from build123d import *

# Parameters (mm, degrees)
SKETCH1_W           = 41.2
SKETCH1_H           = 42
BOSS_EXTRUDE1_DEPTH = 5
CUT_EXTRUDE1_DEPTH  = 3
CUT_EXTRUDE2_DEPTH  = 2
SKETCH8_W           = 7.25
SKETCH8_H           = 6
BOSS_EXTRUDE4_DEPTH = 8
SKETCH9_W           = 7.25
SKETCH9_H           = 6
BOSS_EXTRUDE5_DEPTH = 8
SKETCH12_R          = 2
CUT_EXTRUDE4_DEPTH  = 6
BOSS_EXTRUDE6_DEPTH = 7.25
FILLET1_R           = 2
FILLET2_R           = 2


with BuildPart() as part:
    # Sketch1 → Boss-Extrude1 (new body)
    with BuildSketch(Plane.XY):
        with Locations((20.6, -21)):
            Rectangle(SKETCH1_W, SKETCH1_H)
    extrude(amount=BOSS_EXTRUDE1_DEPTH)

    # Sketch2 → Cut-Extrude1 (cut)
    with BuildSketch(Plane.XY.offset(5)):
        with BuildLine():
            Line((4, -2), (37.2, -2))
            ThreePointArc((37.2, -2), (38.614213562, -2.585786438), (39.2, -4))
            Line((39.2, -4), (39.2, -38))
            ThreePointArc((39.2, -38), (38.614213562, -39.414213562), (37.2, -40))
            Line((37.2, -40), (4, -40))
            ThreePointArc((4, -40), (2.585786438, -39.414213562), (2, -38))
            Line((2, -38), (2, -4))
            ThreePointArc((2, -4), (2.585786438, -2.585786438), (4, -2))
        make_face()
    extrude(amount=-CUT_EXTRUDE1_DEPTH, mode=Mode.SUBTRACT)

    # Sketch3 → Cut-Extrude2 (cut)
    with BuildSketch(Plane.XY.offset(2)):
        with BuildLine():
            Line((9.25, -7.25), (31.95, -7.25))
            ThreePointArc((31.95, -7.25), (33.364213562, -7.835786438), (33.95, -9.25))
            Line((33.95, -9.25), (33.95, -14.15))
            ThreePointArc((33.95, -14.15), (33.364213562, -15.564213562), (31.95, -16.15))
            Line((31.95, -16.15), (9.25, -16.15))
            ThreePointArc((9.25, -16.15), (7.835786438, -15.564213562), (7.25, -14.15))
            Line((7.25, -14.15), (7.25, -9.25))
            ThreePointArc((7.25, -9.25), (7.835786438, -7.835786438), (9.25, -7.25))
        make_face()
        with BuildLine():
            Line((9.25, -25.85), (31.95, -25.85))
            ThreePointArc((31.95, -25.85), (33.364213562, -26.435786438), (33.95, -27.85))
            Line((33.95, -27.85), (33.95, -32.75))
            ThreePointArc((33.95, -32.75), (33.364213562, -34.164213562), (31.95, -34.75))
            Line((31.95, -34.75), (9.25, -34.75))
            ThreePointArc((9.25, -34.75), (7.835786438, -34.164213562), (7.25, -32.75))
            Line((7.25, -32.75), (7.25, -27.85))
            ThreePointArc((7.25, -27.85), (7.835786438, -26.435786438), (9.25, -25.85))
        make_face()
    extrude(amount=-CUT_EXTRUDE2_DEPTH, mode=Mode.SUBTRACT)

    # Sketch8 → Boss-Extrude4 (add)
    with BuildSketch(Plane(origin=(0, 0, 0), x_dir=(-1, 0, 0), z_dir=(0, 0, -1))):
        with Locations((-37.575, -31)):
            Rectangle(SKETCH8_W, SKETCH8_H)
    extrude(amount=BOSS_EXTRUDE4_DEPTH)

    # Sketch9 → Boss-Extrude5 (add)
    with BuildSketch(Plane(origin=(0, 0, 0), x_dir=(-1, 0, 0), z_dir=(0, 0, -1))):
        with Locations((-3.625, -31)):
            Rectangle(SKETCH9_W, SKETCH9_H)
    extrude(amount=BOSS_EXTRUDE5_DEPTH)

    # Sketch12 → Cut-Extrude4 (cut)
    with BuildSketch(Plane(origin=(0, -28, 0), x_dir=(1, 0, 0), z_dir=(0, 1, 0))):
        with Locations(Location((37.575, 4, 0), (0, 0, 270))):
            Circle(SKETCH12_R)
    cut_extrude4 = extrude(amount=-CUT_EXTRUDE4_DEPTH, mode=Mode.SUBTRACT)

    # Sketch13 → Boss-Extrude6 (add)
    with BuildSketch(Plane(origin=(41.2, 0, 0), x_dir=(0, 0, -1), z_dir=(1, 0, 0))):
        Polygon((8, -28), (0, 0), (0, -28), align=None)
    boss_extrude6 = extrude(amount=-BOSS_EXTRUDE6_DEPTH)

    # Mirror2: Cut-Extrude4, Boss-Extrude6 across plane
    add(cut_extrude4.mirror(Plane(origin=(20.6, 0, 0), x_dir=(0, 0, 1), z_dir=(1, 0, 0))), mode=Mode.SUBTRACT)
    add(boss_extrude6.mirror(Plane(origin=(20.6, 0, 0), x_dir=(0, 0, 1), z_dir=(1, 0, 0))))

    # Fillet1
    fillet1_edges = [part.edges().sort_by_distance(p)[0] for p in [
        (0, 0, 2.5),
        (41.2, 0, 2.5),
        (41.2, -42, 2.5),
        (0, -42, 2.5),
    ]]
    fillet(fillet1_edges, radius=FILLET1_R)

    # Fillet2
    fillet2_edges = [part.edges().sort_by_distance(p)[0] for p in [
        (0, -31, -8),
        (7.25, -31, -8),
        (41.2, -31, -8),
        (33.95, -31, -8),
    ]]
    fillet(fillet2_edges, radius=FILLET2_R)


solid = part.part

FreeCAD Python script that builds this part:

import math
import FreeCAD as App
import Part
import Sketcher

V = App.Vector
Q = App.Units.Quantity


def edges_at(feature, points):
    """Names of the edges that pass closest to the given points."""
    edges = feature.Shape.Edges
    near = lambda p: min(range(len(edges)), key=lambda i: edges[i].distToShape(Part.Vertex(*p))[0])
    return sorted({f"Edge{near(p) + 1}" for p in points})


def add_polygon(sketch, points):
    """Adds a closed chain of lines whose ends are joined by coincident constraints."""
    first, n = sketch.GeometryCount, len(points)
    for a, b in zip(points, points[1:] + points[:1]):
        sketch.addGeometry(Part.LineSegment(App.Vector(*a, 0), App.Vector(*b, 0)), False)
    for i in range(n):
        sketch.addConstraint(Sketcher.Constraint("Coincident", first + i, 2, first + (i + 1) % n, 1))

doc = App.newDocument("Part")
body = doc.addObject("PartDesign::Body", "Body")

sketch1 = body.newObject("Sketcher::SketchObject", "Sketch")
sketch1.AttachmentSupport = (doc.getObject("XY_Plane"), [""])
sketch1.MapMode = "FlatFace"
add_polygon(sketch1, [(0, 0), (0, -42), (41, -42), (41, 0)])
sketch1.addConstraint(Sketcher.Constraint("Vertical", 0))
sketch1.addConstraint(Sketcher.Constraint("Horizontal", 1))
sketch1.addConstraint(Sketcher.Constraint("Vertical", 2))
sketch1.addConstraint(Sketcher.Constraint("Horizontal", 3))
sketch1.addConstraint(Sketcher.Constraint("Coincident", 3, 2, -1, 1))
sketch1.addConstraint(Sketcher.Constraint("DistanceY", 0, 2, 0, 1, Q("42 mm")))
sketch1.addConstraint(Sketcher.Constraint("DistanceX", 1, 1, 1, 2, Q("41.2 mm")))
pad1 = body.newObject("PartDesign::Pad", "Pad")
pad1.Profile = sketch1
pad1.Length = 5

sketch2 = body.newObject("Sketcher::SketchObject", "Sketch001")
sketch2.AttachmentSupport = (doc.getObject("XY_Plane"), [""])
sketch2.MapMode = "FlatFace"
sketch2.AttachmentOffset = App.Placement(V(0, 0, 5), App.Rotation())
sketch2.addGeometry(Part.LineSegment(V(37.2, -2, 0), V(4, -2, 0)), False)
sketch2.addGeometry(Part.ArcOfCircle(Part.Circle(V(4, -4, 0), V(0, 0, 1), 2), math.radians(90), math.radians(180)), False)
sketch2.addGeometry(Part.LineSegment(V(2, -4, 0), V(2, -38, 0)), False)
sketch2.addGeometry(Part.ArcOfCircle(Part.Circle(V(4, -38, 0), V(0, 0, 1), 2), math.radians(-180), math.radians(-90)), False)
sketch2.addGeometry(Part.LineSegment(V(4, -40, 0), V(37.2, -40, 0)), False)
sketch2.addGeometry(Part.ArcOfCircle(Part.Circle(V(37.2, -38, 0), V(0, 0, 1), 2), math.radians(-90), math.radians(0)), False)
sketch2.addGeometry(Part.LineSegment(V(39.2, -38, 0), V(39.2, -4, 0)), False)
sketch2.addGeometry(Part.ArcOfCircle(Part.Circle(V(37.2, -4, 0), V(0, 0, 1), 2), math.radians(0), math.radians(90)), False)
sketch2.addConstraint(Sketcher.Constraint("Tangent", 0, 2, 1, 1))
sketch2.addConstraint(Sketcher.Constraint("Tangent", 1, 2, 2, 1))
sketch2.addConstraint(Sketcher.Constraint("Tangent", 2, 2, 3, 1))
sketch2.addConstraint(Sketcher.Constraint("Tangent", 3, 2, 4, 1))
sketch2.addConstraint(Sketcher.Constraint("Tangent", 4, 2, 5, 1))
sketch2.addConstraint(Sketcher.Constraint("Tangent", 5, 2, 6, 1))
sketch2.addConstraint(Sketcher.Constraint("Tangent", 6, 2, 7, 1))
sketch2.addConstraint(Sketcher.Constraint("Tangent", 7, 2, 0, 1))
sketch2.addConstraint(Sketcher.Constraint("Horizontal", 0))
sketch2.addConstraint(Sketcher.Constraint("Vertical", 2))
sketch2.addConstraint(Sketcher.Constraint("Horizontal", 4))
sketch2.addConstraint(Sketcher.Constraint("Vertical", 6))
sketch2.addConstraint(Sketcher.Constraint("Equal", 1, 3))
sketch2.addConstraint(Sketcher.Constraint("Equal", 3, 5))
sketch2.addConstraint(Sketcher.Constraint("Equal", 5, 7))
sketch2.addConstraint(Sketcher.Constraint("Radius", 1, Q("2 mm")))
sketch2.addConstraint(Sketcher.Constraint("DistanceY", 2, 2, 2, 1, Q("34 mm")))
sketch2.addConstraint(Sketcher.Constraint("DistanceX", 0, 2, 0, 1, Q("33.2 mm")))
sketch2.addConstraint(Sketcher.Constraint("DistanceX", -1, 1, 1, 3, Q("4 mm")))
sketch2.addConstraint(Sketcher.Constraint("DistanceY", 1, 3, -1, 1, Q("4 mm")))
pocket1 = body.newObject("PartDesign::Pocket", "Pocket")
pocket1.Profile = sketch2
pocket1.Length = 3

sketch3 = body.newObject("Sketcher::SketchObject", "Sketch002")
sketch3.AttachmentSupport = (doc.getObject("XY_Plane"), [""])
sketch3.MapMode = "FlatFace"
sketch3.AttachmentOffset = App.Placement(V(0, 0, 2), App.Rotation())
sketch3.addGeometry(Part.LineSegment(V(31.9, -7.2, 0), V(9.2, -7.2, 0)), False)
sketch3.addGeometry(Part.ArcOfCircle(Part.Circle(V(9.3, -9.3, 0), V(0, 0, 1), 2), math.radians(90), math.radians(180)), False)
sketch3.addGeometry(Part.LineSegment(V(7.2, -9.2, 0), V(7.2, -14.2, 0)), False)
sketch3.addGeometry(Part.ArcOfCircle(Part.Circle(V(9.3, -14.1, 0), V(0, 0, 1), 2), math.radians(-180), math.radians(-90)), False)
sketch3.addGeometry(Part.LineSegment(V(9.2, -16.1, 0), V(31.9, -16.1, 0)), False)
sketch3.addGeometry(Part.ArcOfCircle(Part.Circle(V(31.9, -14.1, 0), V(0, 0, 1), 2), math.radians(-90), math.radians(0)), False)
sketch3.addGeometry(Part.LineSegment(V(34, -14.2, 0), V(34, -9.2, 0)), False)
sketch3.addGeometry(Part.ArcOfCircle(Part.Circle(V(31.9, -9.3, 0), V(0, 0, 1), 2), math.radians(0), math.radians(90)), False)
sketch3.addGeometry(Part.LineSegment(V(31.9, -25.9, 0), V(9.2, -25.9, 0)), False)
sketch3.addGeometry(Part.ArcOfCircle(Part.Circle(V(9.3, -27.9, 0), V(0, 0, 1), 2), math.radians(90), math.radians(180)), False)
sketch3.addGeometry(Part.LineSegment(V(7.2, -27.9, 0), V(7.2, -32.8, 0)), False)
sketch3.addGeometry(Part.ArcOfCircle(Part.Circle(V(9.3, -32.7, 0), V(0, 0, 1), 2), math.radians(-180), math.radians(-90)), False)
sketch3.addGeometry(Part.LineSegment(V(9.2, -34.8, 0), V(31.9, -34.8, 0)), False)
sketch3.addGeometry(Part.ArcOfCircle(Part.Circle(V(31.9, -32.7, 0), V(0, 0, 1), 2), math.radians(-90), math.radians(0)), False)
sketch3.addGeometry(Part.LineSegment(V(34, -32.8, 0), V(34, -27.9, 0)), False)
sketch3.addGeometry(Part.ArcOfCircle(Part.Circle(V(31.9, -27.9, 0), V(0, 0, 1), 2), math.radians(0), math.radians(90)), False)
sketch3.addConstraint(Sketcher.Constraint("Tangent", 0, 2, 1, 1))
sketch3.addConstraint(Sketcher.Constraint("Tangent", 1, 2, 2, 1))
sketch3.addConstraint(Sketcher.Constraint("Tangent", 2, 2, 3, 1))
sketch3.addConstraint(Sketcher.Constraint("Tangent", 3, 2, 4, 1))
sketch3.addConstraint(Sketcher.Constraint("Tangent", 4, 2, 5, 1))
sketch3.addConstraint(Sketcher.Constraint("Tangent", 5, 2, 6, 1))
sketch3.addConstraint(Sketcher.Constraint("Tangent", 6, 2, 7, 1))
sketch3.addConstraint(Sketcher.Constraint("Tangent", 7, 2, 0, 1))
sketch3.addConstraint(Sketcher.Constraint("Tangent", 8, 2, 9, 1))
sketch3.addConstraint(Sketcher.Constraint("Tangent", 9, 2, 10, 1))
sketch3.addConstraint(Sketcher.Constraint("Tangent", 10, 2, 11, 1))
sketch3.addConstraint(Sketcher.Constraint("Tangent", 11, 2, 12, 1))
sketch3.addConstraint(Sketcher.Constraint("Tangent", 12, 2, 13, 1))
sketch3.addConstraint(Sketcher.Constraint("Tangent", 13, 2, 14, 1))
sketch3.addConstraint(Sketcher.Constraint("Tangent", 14, 2, 15, 1))
sketch3.addConstraint(Sketcher.Constraint("Tangent", 15, 2, 8, 1))
sketch3.addConstraint(Sketcher.Constraint("Horizontal", 0))
sketch3.addConstraint(Sketcher.Constraint("Vertical", 2))
sketch3.addConstraint(Sketcher.Constraint("Horizontal", 4))
sketch3.addConstraint(Sketcher.Constraint("Vertical", 6))
sketch3.addConstraint(Sketcher.Constraint("Horizontal", 8))
sketch3.addConstraint(Sketcher.Constraint("Vertical", 10))
sketch3.addConstraint(Sketcher.Constraint("Horizontal", 12))
sketch3.addConstraint(Sketcher.Constraint("Vertical", 14))
sketch3.addConstraint(Sketcher.Constraint("Equal", 1, 3))
sketch3.addConstraint(Sketcher.Constraint("Equal", 3, 5))
sketch3.addConstraint(Sketcher.Constraint("Equal", 5, 7))
sketch3.addConstraint(Sketcher.Constraint("Equal", 7, 9))
sketch3.addConstraint(Sketcher.Constraint("Equal", 9, 11))
sketch3.addConstraint(Sketcher.Constraint("Equal", 11, 13))
sketch3.addConstraint(Sketcher.Constraint("Equal", 13, 15))
sketch3.addConstraint(Sketcher.Constraint("Vertical", 3, 3, 9, 3))
sketch3.addConstraint(Sketcher.Constraint("Vertical", 7, 3, 13, 3))
sketch3.addConstraint(Sketcher.Constraint("Equal", 6, 10))
sketch3.addConstraint(Sketcher.Constraint("Radius", 1, Q("2 mm")))
sketch3.addConstraint(Sketcher.Constraint("DistanceX", 0, 2, 0, 1, Q("22.7 mm")))
sketch3.addConstraint(Sketcher.Constraint("DistanceY", 2, 2, 2, 1, Q("4.9 mm")))
sketch3.addConstraint(Sketcher.Constraint("DistanceY", 9, 3, 3, 3, Q("13.7 mm")))
sketch3.addConstraint(Sketcher.Constraint("DistanceX", -1, 1, 1, 3, Q("9.25 mm")))
sketch3.addConstraint(Sketcher.Constraint("DistanceY", 1, 3, -1, 1, Q("9.25 mm")))
pocket2 = body.newObject("PartDesign::Pocket", "Pocket001")
pocket2.Profile = sketch3
pocket2.Length = 2

sketch4 = body.newObject("Sketcher::SketchObject", "Sketch003")
sketch4.AttachmentSupport = (doc.getObject("XY_Plane"), [""])
sketch4.MapMode = "FlatFace"
add_polygon(sketch4, [(41, -28), (41, -34), (34, -34), (34, -28)])
sketch4.addConstraint(Sketcher.Constraint("Vertical", 0))
sketch4.addConstraint(Sketcher.Constraint("Horizontal", 1))
sketch4.addConstraint(Sketcher.Constraint("Vertical", 2))
sketch4.addConstraint(Sketcher.Constraint("Horizontal", 3))
sketch4.addConstraint(Sketcher.Constraint("DistanceY", 0, 2, 0, 1, Q("6 mm")))
sketch4.addConstraint(Sketcher.Constraint("DistanceY", 0, 2, -1, 1, Q("34 mm")))
sketch4.addConstraint(Sketcher.Constraint("DistanceX", 1, 2, 1, 1, Q("7.25 mm")))
sketch4.addConstraint(Sketcher.Constraint("DistanceX", -1, 1, 0, 2, Q("41.2 mm")))
pad2 = body.newObject("PartDesign::Pad", "Pad001")
pad2.Profile = sketch4
pad2.Length = 8
pad2.Reversed = True

sketch5 = body.newObject("Sketcher::SketchObject", "Sketch004")
sketch5.AttachmentSupport = (doc.getObject("XY_Plane"), [""])
sketch5.MapMode = "FlatFace"
add_polygon(sketch5, [(7, -28), (7, -34), (0, -34), (0, -28)])
sketch5.addConstraint(Sketcher.Constraint("Vertical", 0))
sketch5.addConstraint(Sketcher.Constraint("Horizontal", 1))
sketch5.addConstraint(Sketcher.Constraint("Vertical", 2))
sketch5.addConstraint(Sketcher.Constraint("Horizontal", 3))
sketch5.addConstraint(Sketcher.Constraint("PointOnObject", 1, 2, -2))
sketch5.addConstraint(Sketcher.Constraint("DistanceY", 0, 2, 0, 1, Q("6 mm")))
sketch5.addConstraint(Sketcher.Constraint("DistanceY", 0, 2, -1, 1, Q("34 mm")))
sketch5.addConstraint(Sketcher.Constraint("DistanceX", 1, 2, 1, 1, Q("7.25 mm")))
pad3 = body.newObject("PartDesign::Pad", "Pad002")
pad3.Profile = sketch5
pad3.Length = 8
pad3.Reversed = True

sketch6 = body.newObject("Sketcher::SketchObject", "Sketch005")
sketch6.AttachmentSupport = (doc.getObject("XZ_Plane"), [""])
sketch6.MapMode = "FlatFace"
sketch6.AttachmentOffset = App.Placement(V(0, 0, 28), App.Rotation())
sketch6.addGeometry(Part.Circle(V(37.6, -4, 0), V(0, 0, 1), 2), False)
sketch6.addConstraint(Sketcher.Constraint("Diameter", 0, Q("4 mm")))
sketch6.addConstraint(Sketcher.Constraint("DistanceY", 0, 3, -1, 1, Q("4 mm")))
sketch6.addConstraint(Sketcher.Constraint("DistanceX", -1, 1, 0, 3, Q("37.575 mm")))
pocket3 = body.newObject("PartDesign::Pocket", "Pocket002")
pocket3.Profile = sketch6
pocket3.Length = 6
pocket3.Reversed = True

sketch7 = body.newObject("Sketcher::SketchObject", "Sketch006")
sketch7.AttachmentSupport = (doc.getObject("YZ_Plane"), [""])
sketch7.MapMode = "FlatFace"
sketch7.AttachmentOffset = App.Placement(V(0, 0, 41.2), App.Rotation())
add_polygon(sketch7, [(-28, -8), (0, 0), (-28, 0)])
sketch7.addConstraint(Sketcher.Constraint("Horizontal", 1))
sketch7.addConstraint(Sketcher.Constraint("Vertical", 2))
sketch7.addConstraint(Sketcher.Constraint("Coincident", 0, 2, -1, 1))
sketch7.addConstraint(Sketcher.Constraint("DistanceX", 1, 2, 1, 1, Q("28 mm")))
sketch7.addConstraint(Sketcher.Constraint("DistanceY", 2, 2, 2, 1, Q("8 mm")))
pad4 = body.newObject("PartDesign::Pad", "Pad003")
pad4.Profile = sketch7
pad4.Length = 7.25
pad4.Reversed = True
doc.recompute()

datumplane = body.newObject("PartDesign::Plane", "DatumPlane")
datumplane.AttachmentSupport = (doc.getObject("YZ_Plane"), [""])
datumplane.MapMode = "FlatFace"
datumplane.AttachmentOffset = App.Placement(V(0, 0, 20.6), App.Rotation())
mirrored = body.newObject("PartDesign::Mirrored", "Mirrored")
mirrored.Originals = [pocket3, pad4]
mirrored.MirrorPlane = (datumplane, [""])
body.Tip = mirrored
doc.recompute()

fillet = body.newObject("PartDesign::Fillet", "Fillet")
fillet.Base = (mirrored, edges_at(mirrored, [
    (0, 0, 2.5),
    (41.2, 0, 2.5),
    (41.2, -42, 2.5),
    (0, -42, 2.5),
]))
fillet.Radius = 2
doc.recompute()

fillet2 = body.newObject("PartDesign::Fillet", "Fillet001")
fillet2.Base = (fillet, edges_at(fillet, [
    (0, -31, -8),
    (7.25, -31, -8),
    (41.2, -31, -8),
    (33.95, -31, -8),
]))
fillet2.Radius = 2

doc.recompute()
